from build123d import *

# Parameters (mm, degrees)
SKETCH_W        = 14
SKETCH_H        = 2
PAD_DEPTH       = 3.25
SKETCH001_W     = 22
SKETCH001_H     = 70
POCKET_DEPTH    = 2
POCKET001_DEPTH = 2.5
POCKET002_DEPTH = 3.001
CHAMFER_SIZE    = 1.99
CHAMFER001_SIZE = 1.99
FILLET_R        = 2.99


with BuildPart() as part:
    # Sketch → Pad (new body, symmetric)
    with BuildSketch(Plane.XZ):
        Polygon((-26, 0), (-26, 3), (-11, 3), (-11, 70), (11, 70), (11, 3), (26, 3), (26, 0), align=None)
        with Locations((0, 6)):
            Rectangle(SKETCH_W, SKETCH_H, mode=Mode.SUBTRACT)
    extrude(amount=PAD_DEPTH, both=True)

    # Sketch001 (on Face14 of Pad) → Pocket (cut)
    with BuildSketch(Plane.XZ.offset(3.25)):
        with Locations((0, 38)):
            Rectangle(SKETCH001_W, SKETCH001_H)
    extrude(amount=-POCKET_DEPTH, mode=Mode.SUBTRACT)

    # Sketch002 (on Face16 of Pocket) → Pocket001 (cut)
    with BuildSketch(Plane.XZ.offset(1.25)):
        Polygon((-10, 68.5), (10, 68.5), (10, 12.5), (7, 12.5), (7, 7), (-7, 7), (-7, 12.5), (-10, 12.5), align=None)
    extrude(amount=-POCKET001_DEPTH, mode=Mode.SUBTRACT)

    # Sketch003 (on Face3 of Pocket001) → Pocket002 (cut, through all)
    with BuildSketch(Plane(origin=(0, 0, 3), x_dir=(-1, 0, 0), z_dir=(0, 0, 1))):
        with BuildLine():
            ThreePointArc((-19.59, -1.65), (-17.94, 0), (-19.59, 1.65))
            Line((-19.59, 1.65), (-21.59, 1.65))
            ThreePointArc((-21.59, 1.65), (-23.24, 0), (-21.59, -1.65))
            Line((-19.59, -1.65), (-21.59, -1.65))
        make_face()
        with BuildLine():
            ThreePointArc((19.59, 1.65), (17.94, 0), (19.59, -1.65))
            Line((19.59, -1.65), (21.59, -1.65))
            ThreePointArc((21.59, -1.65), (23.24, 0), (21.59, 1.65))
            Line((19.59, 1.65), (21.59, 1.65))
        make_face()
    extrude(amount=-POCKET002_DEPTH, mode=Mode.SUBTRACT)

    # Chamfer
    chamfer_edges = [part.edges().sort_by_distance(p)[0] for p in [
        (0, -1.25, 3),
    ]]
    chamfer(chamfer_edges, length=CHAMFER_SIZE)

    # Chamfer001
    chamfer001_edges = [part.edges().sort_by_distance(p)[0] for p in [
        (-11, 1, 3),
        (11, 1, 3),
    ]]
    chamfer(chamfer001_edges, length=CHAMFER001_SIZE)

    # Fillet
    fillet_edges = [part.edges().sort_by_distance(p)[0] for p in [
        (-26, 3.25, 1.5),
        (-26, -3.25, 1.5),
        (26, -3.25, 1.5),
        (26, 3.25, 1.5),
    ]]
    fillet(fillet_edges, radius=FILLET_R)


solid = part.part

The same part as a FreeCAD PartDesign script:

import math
import FreeCAD as App
import Part
import Sketcher


def edges_at(feature, points):
    """Names of the edges that pass closest to the given points."""
    edges = feature.Shape.Edges
    near = lambda p: min(range(len(edges)), key=lambda i: edges[i].distToShape(Part.Vertex(*p))[0])
    return sorted({f"Edge{near(p) + 1}" for p in points})

doc = App.newDocument("Part")
params = doc.addObject("Spreadsheet::Sheet", "Params")
for row, (alias, value) in enumerate([
    ("sketch1_width", "52 mm"),
    ("sketch1_width2", "15 mm"),
    ("sketch1_width3", "14 mm"),
    ("sketch1_height", "3 mm"),
    ("sketch1_height2", "67 mm"),
    ("pad1_length", "6.5 mm"),
    ("sketch2_width", "22 mm"),
    ("sketch2_height", "70 mm"),
    ("pocket1_length", "2 mm"),
    ("sketch3_width", "20 mm"),
    ("sketch3_width2", "3 mm"),
    ("sketch3_height", "56 mm"),
    ("sketch3_height2", "5.5 mm"),
    ("pocket2_length", "2.5 mm"),
    ("sketch4_width", "2 mm"),
    ("sketch4_radius", "1.65 mm"),
    ("chamfer_size", "1.99 mm"),
    ("chamfer2_size", "1.99 mm"),
    ("fillet_radius", "2.99 mm"),
], start=1):
    params.set(f"A{row}", alias)
    params.set(f"B{row}", "=" + value)
    params.setAlias(f"B{row}", alias)

body = doc.addObject("PartDesign::Body", "Body")

# Sketch on XZ plane
sketch1 = body.newObject("Sketcher::SketchObject", "Sketch")
sketch1.AttachmentSupport = (doc.getObject("XZ_Plane"), [""])
sketch1.MapMode = "FlatFace"
sketch1.addGeometry([
    Part.LineSegment(App.Vector(-26, 3, 0), App.Vector(-26, 0, 0)),  # 0
    Part.LineSegment(App.Vector(-26, 0, 0), App.Vector(26, 0, 0)),  # 1
    Part.LineSegment(App.Vector(26, 0, 0), App.Vector(26, 3, 0)),  # 2
    Part.LineSegment(App.Vector(26, 3, 0), App.Vector(11, 3, 0)),  # 3
    Part.LineSegment(App.Vector(11, 3, 0), App.Vector(11, 70, 0)),  # 4
    Part.LineSegment(App.Vector(11, 70, 0), App.Vector(-11, 70, 0)),  # 5
    Part.LineSegment(App.Vector(-11, 70, 0), App.Vector(-11, 3, 0)),  # 6
    Part.LineSegment(App.Vector(-11, 3, 0), App.Vector(-26, 3, 0)),  # 7
    Part.LineSegment(App.Vector(-7, 5, 0), App.Vector(-7, 7, 0)),  # 8
    Part.LineSegment(App.Vector(-7, 7, 0), App.Vector(7, 7, 0)),  # 9
    Part.LineSegment(App.Vector(7, 7, 0), App.Vector(7, 5, 0)),  # 10
    Part.LineSegment(App.Vector(7, 5, 0), App.Vector(-7, 5, 0)),  # 11
], False)
sketch1.addConstraint([
    Sketcher.Constraint("Coincident", 0, 2, 1, 1),
    Sketcher.Constraint("Coincident", 1, 2, 2, 1),
    Sketcher.Constraint("Coincident", 2, 2, 3, 1),
    Sketcher.Constraint("Coincident", 3, 2, 4, 1),
    Sketcher.Constraint("Coincident", 4, 2, 5, 1),
    Sketcher.Constraint("Coincident", 5, 2, 6, 1),
    Sketcher.Constraint("Coincident", 6, 2, 7, 1),
    Sketcher.Constraint("Coincident", 7, 2, 0, 1),
    Sketcher.Constraint("Coincident", 8, 2, 9, 1),
    Sketcher.Constraint("Coincident", 9, 2, 10, 1),
    Sketcher.Constraint("Coincident", 10, 2, 11, 1),
    Sketcher.Constraint("Coincident", 11, 2, 8, 1),
    Sketcher.Constraint("Vertical", 0),
    Sketcher.Constraint("Horizontal", 1),
    Sketcher.Constraint("Vertical", 2),
    Sketcher.Constraint("Horizontal", 3),
    Sketcher.Constraint("Vertical", 4),
    Sketcher.Constraint("Horizontal", 5),
    Sketcher.Constraint("Vertical", 6),
    Sketcher.Constraint("Horizontal", 7),
    Sketcher.Constraint("Vertical", 8),
    Sketcher.Constraint("Horizontal", 9),
    Sketcher.Constraint("Vertical", 10),
    Sketcher.Constraint("Horizontal", 11),
    Sketcher.Constraint("Symmetric", 0, 2, 1, 2, -1, 1),
    Sketcher.Constraint("Symmetric", 3, 2, 6, 2, -2),
    Sketcher.Constraint("DistanceX", 1, 1, 1, 2, 52.0),
    Sketcher.Constraint("DistanceX", 3, 2, 3, 1, 15.0),
    Sketcher.Constraint("DistanceX", 9, 1, 9, 2, 14.0),
    Sketcher.Constraint("DistanceY", 0, 2, 0, 1, 3.0),
    Sketcher.Constraint("DistanceY", 4, 1, 4, 2, 67.0),
    Sketcher.Constraint("DistanceY", 8, 1, 8, 2, 2.0),
    Sketcher.Constraint("DistanceX", 8, 2, -1, 1, 7.0),
    Sketcher.Constraint("DistanceY", -1, 1, 8, 2, 7.0),
])
sketch1.setExpression("Constraints[26]", "Params.sketch1_width")
sketch1.setExpression("Constraints[27]", "Params.sketch1_width2")
sketch1.setExpression("Constraints[28]", "Params.sketch1_width3")
sketch1.setExpression("Constraints[29]", "Params.sketch1_height")
sketch1.setExpression("Constraints[30]", "Params.sketch1_height2")
pad1 = body.newObject("PartDesign::Pad", "Pad")
pad1.Profile = sketch1
pad1.setExpression("Length", "Params.pad1_length")
pad1.Midplane = True

# Sketch on XZ plane
sketch2 = body.newObject("Sketcher::SketchObject", "Sketch001")
sketch2.AttachmentSupport = (doc.getObject("XZ_Plane"), [""])
sketch2.MapMode = "FlatFace"
sketch2.AttachmentOffset = App.Placement(App.Vector(0, 0, 3.25), App.Rotation())
sketch2.addGeometry([
    Part.LineSegment(App.Vector(-11, 73, 0), App.Vector(-11, 3, 0)),
    Part.LineSegment(App.Vector(-11, 3, 0), App.Vector(11, 3, 0)),
    Part.LineSegment(App.Vector(11, 3, 0), App.Vector(11, 73, 0)),
    Part.LineSegment(App.Vector(11, 73, 0), App.Vector(-11, 73, 0)),
], False)
sketch2.addConstraint([
    Sketcher.Constraint("Coincident", 0, 2, 1, 1),
    Sketcher.Constraint("Coincident", 1, 2, 2, 1),
    Sketcher.Constraint("Coincident", 2, 2, 3, 1),
    Sketcher.Constraint("Coincident", 3, 2, 0, 1),
    Sketcher.Constraint("Vertical", 0),
    Sketcher.Constraint("Horizontal", 1),
    Sketcher.Constraint("Vertical", 2),
    Sketcher.Constraint("Horizontal", 3),
    Sketcher.Constraint("DistanceX", 1, 1, 1, 2, 22.0),
    Sketcher.Constraint("DistanceY", 0, 2, 0, 1, 70.0),
    Sketcher.Constraint("DistanceX", 0, 2, -1, 1, 11.0),
    Sketcher.Constraint("DistanceY", -1, 1, 0, 2, 3.0),
])
sketch2.setExpression("Constraints[8]", "Params.sketch2_width")
sketch2.setExpression("Constraints[9]", "Params.sketch2_height")
pocket1 = body.newObject("PartDesign::Pocket", "Pocket")
pocket1.Profile = sketch2
pocket1.setExpression("Length", "Params.pocket1_length")

# Sketch on XZ plane
sketch3 = body.newObject("Sketcher::SketchObject", "Sketch002")
sketch3.AttachmentSupport = (doc.getObject("XZ_Plane"), [""])
sketch3.MapMode = "FlatFace"
sketch3.AttachmentOffset = App.Placement(App.Vector(0, 0, 1.25), App.Rotation())
sketch3.addGeometry([
    Part.LineSegment(App.Vector(10, 68.5, 0), App.Vector(-10, 68.5, 0)),  # 0
    Part.LineSegment(App.Vector(-10, 68.5, 0), App.Vector(-10, 12.5, 0)),  # 1
    Part.LineSegment(App.Vector(-10, 12.5, 0), App.Vector(-7, 12.5, 0)),  # 2
    Part.LineSegment(App.Vector(-7, 12.5, 0), App.Vector(-7, 7, 0)),  # 3
    Part.LineSegment(App.Vector(-7, 7, 0), App.Vector(7, 7, 0)),  # 4
    Part.LineSegment(App.Vector(7, 7, 0), App.Vector(7, 12.5, 0)),  # 5
    Part.LineSegment(App.Vector(7, 12.5, 0), App.Vector(10, 12.5, 0)),  # 6
    Part.LineSegment(App.Vector(10, 12.5, 0), App.Vector(10, 68.5, 0)),  # 7
], False)
sketch3.addConstraint([
    Sketcher.Constraint("Coincident", 0, 2, 1, 1),
    Sketcher.Constraint("Coincident", 1, 2, 2, 1),
    Sketcher.Constraint("Coincident", 2, 2, 3, 1),
    Sketcher.Constraint("Coincident", 3, 2, 4, 1),
    Sketcher.Constraint("Coincident", 4, 2, 5, 1),
    Sketcher.Constraint("Coincident", 5, 2, 6, 1),
    Sketcher.Constraint("Coincident", 6, 2, 7, 1),
    Sketcher.Constraint("Coincident", 7, 2, 0, 1),
    Sketcher.Constraint("Horizontal", 0),
    Sketcher.Constraint("Vertical", 1),
    Sketcher.Constraint("Horizontal", 2),
    Sketcher.Constraint("Vertical", 3),
    Sketcher.Constraint("Horizontal", 4),
    Sketcher.Constraint("Vertical", 5),
    Sketcher.Constraint("Horizontal", 6),
    Sketcher.Constraint("Vertical", 7),
    Sketcher.Constraint("Symmetric", 2, 2, 5, 2, -2),
    Sketcher.Constraint("Equal", 2, 6),
    Sketcher.Constraint("DistanceX", 0, 2, 0, 1, 20.0),
    Sketcher.Constraint("DistanceX", 2, 1, 2, 2, 3.0),
    Sketcher.Constraint("DistanceY", 1, 2, 1, 1, 56.0),
    Sketcher.Constraint("DistanceY", 3, 2, 3, 1, 5.5),
    Sketcher.Constraint("DistanceY", -1, 1, 3, 2, 7.0),
])
sketch3.setExpression("Constraints[18]", "Params.sketch3_width")
sketch3.setExpression("Constraints[19]", "Params.sketch3_width2")
sketch3.setExpression("Constraints[20]", "Params.sketch3_height")
sketch3.setExpression("Constraints[21]", "Params.sketch3_height2")
pocket2 = body.newObject("PartDesign::Pocket", "Pocket001")
pocket2.Profile = sketch3
pocket2.setExpression("Length", "Params.pocket2_length")

# Sketch on XY plane
sketch4 = body.newObject("Sketcher::SketchObject", "Sketch003")
sketch4.AttachmentSupport = (doc.getObject("XY_Plane"), [""])
sketch4.MapMode = "FlatFace"
sketch4.AttachmentOffset = App.Placement(App.Vector(0, 0, 3), App.Rotation())
sketch4.addGeometry([
    Part.ArcOfCircle(Part.Circle(App.Vector(19.6, 0, 0), App.Vector(0, 0, 1), 1.6), math.radians(90), math.radians(270)),  # 0
    Part.LineSegment(App.Vector(19.6, -1.6, 0), App.Vector(21.6, -1.6, 0)),  # 1
    Part.ArcOfCircle(Part.Circle(App.Vector(21.6, 0, 0), App.Vector(0, 0, 1), 1.6), math.radians(-90), math.radians(90)),  # 2
    Part.LineSegment(App.Vector(21.6, 1.6, 0), App.Vector(19.6, 1.6, 0)),  # 3
    Part.ArcOfCircle(Part.Circle(App.Vector(-19.6, 0, 0), App.Vector(0, 0, 1), 1.6), math.radians(-90), math.radians(90)),  # 4
    Part.LineSegment(App.Vector(-19.6, 1.6, 0), App.Vector(-21.6, 1.6, 0)),  # 5
    Part.ArcOfCircle(Part.Circle(App.Vector(-21.6, 0, 0), App.Vector(0, 0, 1), 1.6), math.radians(90), math.radians(270)),  # 6
    Part.LineSegment(App.Vector(-21.6, -1.6, 0), App.Vector(-19.6, -1.6, 0)),  # 7
], False)
sketch4.addConstraint([
    Sketcher.Constraint("Tangent", 0, 2, 1, 1),
    Sketcher.Constraint("Tangent", 1, 2, 2, 1),
    Sketcher.Constraint("Tangent", 2, 2, 3, 1),
    Sketcher.Constraint("Tangent", 3, 2, 0, 1),
    Sketcher.Constraint("Tangent", 4, 2, 5, 1),
    Sketcher.Constraint("Tangent", 5, 2, 6, 1),
    Sketcher.Constraint("Tangent", 6, 2, 7, 1),
    Sketcher.Constraint("Tangent", 7, 2, 4, 1),
    Sketcher.Constraint("Horizontal", 1),
    Sketcher.Constraint("Horizontal", 3),
    Sketcher.Constraint("Horizontal", 5),
    Sketcher.Constraint("Horizontal", 7),
    Sketcher.Constraint("Equal", 2, 4),
    Sketcher.Constraint("Symmetric", 0, 3, 4, 3, -1, 1),
    Sketcher.Constraint("Symmetric", 2, 3, 6, 3, -2),
    Sketcher.Constraint("DistanceX", 1, 1, 1, 2, 2.0),
    Sketcher.Constraint("Radius", 0, 1.65),
    Sketcher.Constraint("DistanceX", -1, 1, 0, 3, 19.59),
])
sketch4.setExpression("Constraints[15]", "Params.sketch4_width")
sketch4.setExpression("Constraints[16]", "Params.sketch4_radius")
pocket3 = body.newObject("PartDesign::Pocket", "Pocket002")
pocket3.Profile = sketch4
pocket3.Type = "ThroughAll"
doc.recompute()

chamfer = body.newObject("PartDesign::Chamfer", "Chamfer")
chamfer.Base = (pocket3, edges_at(pocket3, [(0, -1.25, 3)]))
chamfer.setExpression("Size", "Params.chamfer_size")
doc.recompute()

chamfer2 = body.newObject("PartDesign::Chamfer", "Chamfer001")
chamfer2.Base = (chamfer, edges_at(chamfer, [(-11, 0.005, 3), (11, 0.005, 3)]))
chamfer2.setExpression("Size", "Params.chamfer2_size")
doc.recompute()

fillet = body.newObject("PartDesign::Fillet", "Fillet")
fillet.Base = (chamfer2, edges_at(chamfer2, [
    (-26, 3.25, 1.5),
    (-26, -3.25, 1.5),
    (26, -3.25, 1.5),
    (26, 3.25, 1.5),
]))
fillet.setExpression("Radius", "Params.fillet_radius")

doc.recompute()
